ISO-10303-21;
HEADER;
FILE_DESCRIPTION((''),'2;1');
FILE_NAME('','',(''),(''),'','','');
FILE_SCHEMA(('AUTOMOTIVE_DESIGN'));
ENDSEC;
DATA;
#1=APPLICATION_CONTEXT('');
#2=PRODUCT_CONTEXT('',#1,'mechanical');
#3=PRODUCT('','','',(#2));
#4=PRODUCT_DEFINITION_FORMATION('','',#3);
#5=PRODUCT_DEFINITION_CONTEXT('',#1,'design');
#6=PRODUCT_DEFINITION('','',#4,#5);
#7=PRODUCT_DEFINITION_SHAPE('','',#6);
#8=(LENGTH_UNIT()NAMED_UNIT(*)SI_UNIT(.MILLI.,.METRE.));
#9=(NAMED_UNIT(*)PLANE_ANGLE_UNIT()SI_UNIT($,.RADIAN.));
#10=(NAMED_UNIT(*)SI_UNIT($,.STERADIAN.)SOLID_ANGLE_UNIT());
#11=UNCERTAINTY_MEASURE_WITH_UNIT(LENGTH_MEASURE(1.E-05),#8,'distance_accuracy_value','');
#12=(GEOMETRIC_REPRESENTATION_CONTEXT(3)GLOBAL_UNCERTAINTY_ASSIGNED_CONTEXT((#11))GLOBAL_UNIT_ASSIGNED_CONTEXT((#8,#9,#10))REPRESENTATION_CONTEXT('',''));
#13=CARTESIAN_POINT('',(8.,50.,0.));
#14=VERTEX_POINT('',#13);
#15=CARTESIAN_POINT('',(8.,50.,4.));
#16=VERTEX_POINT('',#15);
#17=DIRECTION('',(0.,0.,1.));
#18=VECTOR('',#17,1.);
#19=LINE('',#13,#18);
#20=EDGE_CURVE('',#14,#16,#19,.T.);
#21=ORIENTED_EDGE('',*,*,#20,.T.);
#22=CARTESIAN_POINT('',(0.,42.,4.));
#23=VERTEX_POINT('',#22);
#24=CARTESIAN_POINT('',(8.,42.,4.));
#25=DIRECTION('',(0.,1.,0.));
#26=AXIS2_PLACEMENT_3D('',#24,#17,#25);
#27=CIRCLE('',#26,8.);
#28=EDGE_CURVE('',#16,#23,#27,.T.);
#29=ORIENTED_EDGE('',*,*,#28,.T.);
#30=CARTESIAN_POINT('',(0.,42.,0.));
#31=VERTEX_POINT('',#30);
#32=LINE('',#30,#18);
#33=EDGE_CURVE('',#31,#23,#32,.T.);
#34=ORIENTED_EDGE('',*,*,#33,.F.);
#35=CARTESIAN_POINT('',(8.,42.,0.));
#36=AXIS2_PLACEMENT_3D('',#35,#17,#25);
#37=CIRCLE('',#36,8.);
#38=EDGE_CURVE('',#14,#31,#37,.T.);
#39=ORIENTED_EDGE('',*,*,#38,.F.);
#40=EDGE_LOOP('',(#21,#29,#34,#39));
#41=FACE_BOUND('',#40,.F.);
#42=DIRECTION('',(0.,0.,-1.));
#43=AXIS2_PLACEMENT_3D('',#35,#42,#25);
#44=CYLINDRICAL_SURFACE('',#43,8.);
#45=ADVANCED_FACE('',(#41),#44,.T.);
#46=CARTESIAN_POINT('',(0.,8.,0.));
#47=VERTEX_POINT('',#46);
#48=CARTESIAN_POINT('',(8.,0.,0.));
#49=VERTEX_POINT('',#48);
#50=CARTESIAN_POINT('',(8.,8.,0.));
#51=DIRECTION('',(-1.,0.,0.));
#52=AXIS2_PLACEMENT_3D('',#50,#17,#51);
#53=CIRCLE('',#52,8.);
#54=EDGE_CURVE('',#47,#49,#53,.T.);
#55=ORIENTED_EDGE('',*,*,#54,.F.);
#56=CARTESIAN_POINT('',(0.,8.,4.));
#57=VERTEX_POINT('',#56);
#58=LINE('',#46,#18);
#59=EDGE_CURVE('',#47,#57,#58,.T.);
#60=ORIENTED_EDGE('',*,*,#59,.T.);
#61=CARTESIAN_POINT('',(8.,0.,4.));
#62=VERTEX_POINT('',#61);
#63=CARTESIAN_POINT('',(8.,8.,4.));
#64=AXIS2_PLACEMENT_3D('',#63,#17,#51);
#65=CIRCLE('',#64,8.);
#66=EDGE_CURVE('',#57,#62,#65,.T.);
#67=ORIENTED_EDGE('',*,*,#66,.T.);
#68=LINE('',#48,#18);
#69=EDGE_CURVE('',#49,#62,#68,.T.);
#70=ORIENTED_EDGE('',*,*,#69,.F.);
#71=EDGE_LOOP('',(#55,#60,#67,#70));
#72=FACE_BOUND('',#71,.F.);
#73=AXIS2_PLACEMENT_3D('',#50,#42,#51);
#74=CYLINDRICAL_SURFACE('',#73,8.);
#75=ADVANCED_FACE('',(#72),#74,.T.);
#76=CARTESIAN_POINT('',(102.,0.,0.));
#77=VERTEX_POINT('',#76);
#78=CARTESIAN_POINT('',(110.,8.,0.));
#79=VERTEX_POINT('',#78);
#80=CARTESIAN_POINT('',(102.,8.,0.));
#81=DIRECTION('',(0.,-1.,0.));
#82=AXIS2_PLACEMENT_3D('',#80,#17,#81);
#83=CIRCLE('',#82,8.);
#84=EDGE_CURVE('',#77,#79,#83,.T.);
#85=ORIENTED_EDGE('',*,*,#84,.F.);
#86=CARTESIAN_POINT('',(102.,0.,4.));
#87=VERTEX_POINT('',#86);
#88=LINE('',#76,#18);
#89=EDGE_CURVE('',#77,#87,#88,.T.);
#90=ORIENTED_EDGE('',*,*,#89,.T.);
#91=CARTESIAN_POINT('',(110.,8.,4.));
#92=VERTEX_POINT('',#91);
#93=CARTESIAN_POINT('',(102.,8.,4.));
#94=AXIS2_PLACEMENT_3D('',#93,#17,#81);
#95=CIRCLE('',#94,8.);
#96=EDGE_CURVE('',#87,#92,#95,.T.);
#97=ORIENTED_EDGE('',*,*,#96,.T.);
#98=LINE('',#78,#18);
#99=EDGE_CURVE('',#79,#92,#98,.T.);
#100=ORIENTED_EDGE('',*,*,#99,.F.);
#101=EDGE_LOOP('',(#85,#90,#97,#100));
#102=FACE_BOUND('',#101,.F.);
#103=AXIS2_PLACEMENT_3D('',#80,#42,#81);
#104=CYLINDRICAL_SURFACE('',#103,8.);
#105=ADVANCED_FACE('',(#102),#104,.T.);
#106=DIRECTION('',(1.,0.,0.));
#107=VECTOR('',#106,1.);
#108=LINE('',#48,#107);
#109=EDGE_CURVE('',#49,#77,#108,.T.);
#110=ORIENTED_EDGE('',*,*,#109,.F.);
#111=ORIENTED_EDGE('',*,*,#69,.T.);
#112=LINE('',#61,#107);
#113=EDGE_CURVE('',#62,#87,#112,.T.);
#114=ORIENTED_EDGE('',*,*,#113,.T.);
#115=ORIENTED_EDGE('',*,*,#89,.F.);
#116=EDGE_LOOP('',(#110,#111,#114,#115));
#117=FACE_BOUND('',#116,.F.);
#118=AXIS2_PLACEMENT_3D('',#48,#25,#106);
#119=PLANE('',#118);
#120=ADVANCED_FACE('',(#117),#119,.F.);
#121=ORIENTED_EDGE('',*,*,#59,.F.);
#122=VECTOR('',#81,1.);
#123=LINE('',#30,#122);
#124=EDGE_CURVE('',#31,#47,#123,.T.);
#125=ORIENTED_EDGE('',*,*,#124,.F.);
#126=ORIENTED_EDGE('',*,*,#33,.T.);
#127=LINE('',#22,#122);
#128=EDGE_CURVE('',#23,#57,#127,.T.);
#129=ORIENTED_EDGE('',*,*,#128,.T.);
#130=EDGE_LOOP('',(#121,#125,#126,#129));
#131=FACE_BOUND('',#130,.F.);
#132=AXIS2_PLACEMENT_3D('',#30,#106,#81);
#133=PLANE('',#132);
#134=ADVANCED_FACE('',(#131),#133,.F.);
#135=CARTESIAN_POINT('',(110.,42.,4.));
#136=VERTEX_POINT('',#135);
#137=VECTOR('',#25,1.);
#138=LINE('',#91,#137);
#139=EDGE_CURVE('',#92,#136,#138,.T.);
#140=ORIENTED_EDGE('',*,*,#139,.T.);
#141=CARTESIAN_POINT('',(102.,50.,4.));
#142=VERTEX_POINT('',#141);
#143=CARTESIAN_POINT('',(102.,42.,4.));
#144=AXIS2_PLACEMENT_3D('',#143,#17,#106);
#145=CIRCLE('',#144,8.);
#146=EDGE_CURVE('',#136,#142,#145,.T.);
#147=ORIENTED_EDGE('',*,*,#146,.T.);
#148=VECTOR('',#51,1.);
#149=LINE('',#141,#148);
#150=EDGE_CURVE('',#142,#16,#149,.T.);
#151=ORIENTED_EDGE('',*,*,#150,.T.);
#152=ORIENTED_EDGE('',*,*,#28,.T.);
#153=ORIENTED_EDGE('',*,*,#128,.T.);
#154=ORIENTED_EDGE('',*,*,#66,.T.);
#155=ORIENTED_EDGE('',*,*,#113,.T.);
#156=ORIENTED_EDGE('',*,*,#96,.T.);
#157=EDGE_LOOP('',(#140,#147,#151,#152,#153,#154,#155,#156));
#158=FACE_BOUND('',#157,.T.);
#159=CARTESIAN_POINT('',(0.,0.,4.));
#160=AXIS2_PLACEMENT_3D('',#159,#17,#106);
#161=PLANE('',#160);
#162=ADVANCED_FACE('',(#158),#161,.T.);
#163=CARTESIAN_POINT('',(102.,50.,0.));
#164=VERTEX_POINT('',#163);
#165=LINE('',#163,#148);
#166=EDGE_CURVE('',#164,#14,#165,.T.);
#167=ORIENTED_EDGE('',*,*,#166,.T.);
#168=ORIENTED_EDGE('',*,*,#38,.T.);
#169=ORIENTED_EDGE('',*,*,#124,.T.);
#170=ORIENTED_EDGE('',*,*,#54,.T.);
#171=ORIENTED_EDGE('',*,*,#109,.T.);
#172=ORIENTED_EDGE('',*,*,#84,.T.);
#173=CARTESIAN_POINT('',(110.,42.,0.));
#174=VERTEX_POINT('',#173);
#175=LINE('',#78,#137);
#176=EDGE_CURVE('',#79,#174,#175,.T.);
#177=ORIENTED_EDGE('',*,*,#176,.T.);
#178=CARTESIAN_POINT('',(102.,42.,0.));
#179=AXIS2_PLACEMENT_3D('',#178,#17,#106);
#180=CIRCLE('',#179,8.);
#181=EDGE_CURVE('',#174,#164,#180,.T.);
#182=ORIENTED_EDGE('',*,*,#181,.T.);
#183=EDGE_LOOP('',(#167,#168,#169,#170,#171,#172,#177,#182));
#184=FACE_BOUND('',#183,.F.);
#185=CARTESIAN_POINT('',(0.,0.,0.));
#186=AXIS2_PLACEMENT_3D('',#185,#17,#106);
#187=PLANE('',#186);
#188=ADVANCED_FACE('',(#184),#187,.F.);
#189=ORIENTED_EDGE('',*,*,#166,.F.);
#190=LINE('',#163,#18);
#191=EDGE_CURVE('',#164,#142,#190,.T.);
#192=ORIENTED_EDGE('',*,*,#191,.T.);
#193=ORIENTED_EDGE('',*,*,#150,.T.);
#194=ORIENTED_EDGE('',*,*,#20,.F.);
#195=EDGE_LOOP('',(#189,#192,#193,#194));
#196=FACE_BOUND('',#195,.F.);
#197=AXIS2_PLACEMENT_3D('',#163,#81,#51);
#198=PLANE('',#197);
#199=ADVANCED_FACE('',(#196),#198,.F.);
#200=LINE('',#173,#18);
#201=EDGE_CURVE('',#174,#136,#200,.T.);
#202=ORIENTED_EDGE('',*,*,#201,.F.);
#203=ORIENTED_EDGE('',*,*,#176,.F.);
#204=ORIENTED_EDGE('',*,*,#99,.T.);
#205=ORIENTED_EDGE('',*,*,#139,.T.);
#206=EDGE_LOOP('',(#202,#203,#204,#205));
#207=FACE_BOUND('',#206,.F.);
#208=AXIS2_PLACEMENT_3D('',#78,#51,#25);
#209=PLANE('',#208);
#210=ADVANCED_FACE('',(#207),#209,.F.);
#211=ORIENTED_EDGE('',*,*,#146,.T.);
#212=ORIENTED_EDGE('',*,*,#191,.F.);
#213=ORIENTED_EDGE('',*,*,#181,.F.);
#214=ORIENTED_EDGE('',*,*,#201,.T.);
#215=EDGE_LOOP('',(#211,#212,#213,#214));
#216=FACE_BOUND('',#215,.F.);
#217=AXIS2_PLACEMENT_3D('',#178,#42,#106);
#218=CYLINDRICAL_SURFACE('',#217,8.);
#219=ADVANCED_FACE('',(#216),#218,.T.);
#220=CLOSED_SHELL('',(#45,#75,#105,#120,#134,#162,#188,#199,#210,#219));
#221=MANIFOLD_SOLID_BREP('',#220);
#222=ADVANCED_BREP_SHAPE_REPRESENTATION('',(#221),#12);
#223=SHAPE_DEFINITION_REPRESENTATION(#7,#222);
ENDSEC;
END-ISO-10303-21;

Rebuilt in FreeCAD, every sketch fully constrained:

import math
import FreeCAD as App
import Part
import Sketcher
from FreeCAD import Vector
Q = App.Units.Quantity

doc = App.newDocument("Part")
params = doc.addObject("Spreadsheet::Sheet", "Params")
for row, (alias, value) in enumerate([
    ("sketch1_radius", "8 mm"),
    ("pad1_length", "4 mm"),
], start=1):
    params.set(f"A{row}", alias)
    params.set(f"B{row}", "=" + value)
    params.setAlias(f"B{row}", alias)

body = doc.addObject("PartDesign::Body", "Body")

# Sketch on XY plane
sketch1 = body.newObject("Sketcher::SketchObject", "Sketch")
sketch1.AttachmentSupport = (doc.getObject("XY_Plane"), [""])
sketch1.MapMode = "FlatFace"
sketch1.addGeometry([
    Part.ArcOfCircle(Part.Circle(Vector(8, 8, 0), Vector(0, 0, 1), 8), math.radians(180), math.radians(270)),  # 0
    Part.LineSegment(Vector(8, 0, 0), Vector(102, 0, 0)),  # 1
    Part.ArcOfCircle(Part.Circle(Vector(102, 8, 0), Vector(0, 0, 1), 8), math.radians(-90), math.radians(0)),  # 2
    Part.LineSegment(Vector(110, 8, 0), Vector(110, 42, 0)),  # 3
    Part.ArcOfCircle(Part.Circle(Vector(102, 42, 0), Vector(0, 0, 1), 8), math.radians(0), math.radians(90)),  # 4
    Part.LineSegment(Vector(102, 50, 0), Vector(8, 50, 0)),  # 5
    Part.ArcOfCircle(Part.Circle(Vector(8, 42, 0), Vector(0, 0, 1), 8), math.radians(90), math.radians(180)),  # 6
    Part.LineSegment(Vector(0, 42, 0), Vector(0, 8, 0)),  # 7
], False)
sketch1.addConstraint([
    Sketcher.Constraint("Tangent", 0, 2, 1, 1),
    Sketcher.Constraint("Tangent", 1, 2, 2, 1),
    Sketcher.Constraint("Tangent", 2, 2, 3, 1),
    Sketcher.Constraint("Tangent", 3, 2, 4, 1),
    Sketcher.Constraint("Tangent", 4, 2, 5, 1),
    Sketcher.Constraint("Tangent", 5, 2, 6, 1),
    Sketcher.Constraint("Tangent", 6, 2, 7, 1),
    Sketcher.Constraint("Tangent", 7, 2, 0, 1),
    Sketcher.Constraint("Horizontal", 1),
    Sketcher.Constraint("Vertical", 3),
    Sketcher.Constraint("Horizontal", 5),
    Sketcher.Constraint("Vertical", 7),
    Sketcher.Constraint("Equal", 0, 2),
    Sketcher.Constraint("Equal", 2, 4),
    Sketcher.Constraint("Equal", 4, 6),
    Sketcher.Constraint("PointOnObject", 0, 2, -1),
    Sketcher.Constraint("PointOnObject", 6, 2, -2),
    Sketcher.Constraint("Radius", 0, Q("8 mm")),
    Sketcher.Constraint("DistanceX", -1, 1, 2, 2, Q("110 mm")),
    Sketcher.Constraint("DistanceY", -1, 1, 4, 2, Q("50 mm")),
])
sketch1.setExpression("Constraints[17]", "Params.sketch1_radius")
pad1 = body.newObject("PartDesign::Pad", "Pad")
pad1.Profile = sketch1
pad1.setExpression("Length", "Params.pad1_length")

doc.recompute()
